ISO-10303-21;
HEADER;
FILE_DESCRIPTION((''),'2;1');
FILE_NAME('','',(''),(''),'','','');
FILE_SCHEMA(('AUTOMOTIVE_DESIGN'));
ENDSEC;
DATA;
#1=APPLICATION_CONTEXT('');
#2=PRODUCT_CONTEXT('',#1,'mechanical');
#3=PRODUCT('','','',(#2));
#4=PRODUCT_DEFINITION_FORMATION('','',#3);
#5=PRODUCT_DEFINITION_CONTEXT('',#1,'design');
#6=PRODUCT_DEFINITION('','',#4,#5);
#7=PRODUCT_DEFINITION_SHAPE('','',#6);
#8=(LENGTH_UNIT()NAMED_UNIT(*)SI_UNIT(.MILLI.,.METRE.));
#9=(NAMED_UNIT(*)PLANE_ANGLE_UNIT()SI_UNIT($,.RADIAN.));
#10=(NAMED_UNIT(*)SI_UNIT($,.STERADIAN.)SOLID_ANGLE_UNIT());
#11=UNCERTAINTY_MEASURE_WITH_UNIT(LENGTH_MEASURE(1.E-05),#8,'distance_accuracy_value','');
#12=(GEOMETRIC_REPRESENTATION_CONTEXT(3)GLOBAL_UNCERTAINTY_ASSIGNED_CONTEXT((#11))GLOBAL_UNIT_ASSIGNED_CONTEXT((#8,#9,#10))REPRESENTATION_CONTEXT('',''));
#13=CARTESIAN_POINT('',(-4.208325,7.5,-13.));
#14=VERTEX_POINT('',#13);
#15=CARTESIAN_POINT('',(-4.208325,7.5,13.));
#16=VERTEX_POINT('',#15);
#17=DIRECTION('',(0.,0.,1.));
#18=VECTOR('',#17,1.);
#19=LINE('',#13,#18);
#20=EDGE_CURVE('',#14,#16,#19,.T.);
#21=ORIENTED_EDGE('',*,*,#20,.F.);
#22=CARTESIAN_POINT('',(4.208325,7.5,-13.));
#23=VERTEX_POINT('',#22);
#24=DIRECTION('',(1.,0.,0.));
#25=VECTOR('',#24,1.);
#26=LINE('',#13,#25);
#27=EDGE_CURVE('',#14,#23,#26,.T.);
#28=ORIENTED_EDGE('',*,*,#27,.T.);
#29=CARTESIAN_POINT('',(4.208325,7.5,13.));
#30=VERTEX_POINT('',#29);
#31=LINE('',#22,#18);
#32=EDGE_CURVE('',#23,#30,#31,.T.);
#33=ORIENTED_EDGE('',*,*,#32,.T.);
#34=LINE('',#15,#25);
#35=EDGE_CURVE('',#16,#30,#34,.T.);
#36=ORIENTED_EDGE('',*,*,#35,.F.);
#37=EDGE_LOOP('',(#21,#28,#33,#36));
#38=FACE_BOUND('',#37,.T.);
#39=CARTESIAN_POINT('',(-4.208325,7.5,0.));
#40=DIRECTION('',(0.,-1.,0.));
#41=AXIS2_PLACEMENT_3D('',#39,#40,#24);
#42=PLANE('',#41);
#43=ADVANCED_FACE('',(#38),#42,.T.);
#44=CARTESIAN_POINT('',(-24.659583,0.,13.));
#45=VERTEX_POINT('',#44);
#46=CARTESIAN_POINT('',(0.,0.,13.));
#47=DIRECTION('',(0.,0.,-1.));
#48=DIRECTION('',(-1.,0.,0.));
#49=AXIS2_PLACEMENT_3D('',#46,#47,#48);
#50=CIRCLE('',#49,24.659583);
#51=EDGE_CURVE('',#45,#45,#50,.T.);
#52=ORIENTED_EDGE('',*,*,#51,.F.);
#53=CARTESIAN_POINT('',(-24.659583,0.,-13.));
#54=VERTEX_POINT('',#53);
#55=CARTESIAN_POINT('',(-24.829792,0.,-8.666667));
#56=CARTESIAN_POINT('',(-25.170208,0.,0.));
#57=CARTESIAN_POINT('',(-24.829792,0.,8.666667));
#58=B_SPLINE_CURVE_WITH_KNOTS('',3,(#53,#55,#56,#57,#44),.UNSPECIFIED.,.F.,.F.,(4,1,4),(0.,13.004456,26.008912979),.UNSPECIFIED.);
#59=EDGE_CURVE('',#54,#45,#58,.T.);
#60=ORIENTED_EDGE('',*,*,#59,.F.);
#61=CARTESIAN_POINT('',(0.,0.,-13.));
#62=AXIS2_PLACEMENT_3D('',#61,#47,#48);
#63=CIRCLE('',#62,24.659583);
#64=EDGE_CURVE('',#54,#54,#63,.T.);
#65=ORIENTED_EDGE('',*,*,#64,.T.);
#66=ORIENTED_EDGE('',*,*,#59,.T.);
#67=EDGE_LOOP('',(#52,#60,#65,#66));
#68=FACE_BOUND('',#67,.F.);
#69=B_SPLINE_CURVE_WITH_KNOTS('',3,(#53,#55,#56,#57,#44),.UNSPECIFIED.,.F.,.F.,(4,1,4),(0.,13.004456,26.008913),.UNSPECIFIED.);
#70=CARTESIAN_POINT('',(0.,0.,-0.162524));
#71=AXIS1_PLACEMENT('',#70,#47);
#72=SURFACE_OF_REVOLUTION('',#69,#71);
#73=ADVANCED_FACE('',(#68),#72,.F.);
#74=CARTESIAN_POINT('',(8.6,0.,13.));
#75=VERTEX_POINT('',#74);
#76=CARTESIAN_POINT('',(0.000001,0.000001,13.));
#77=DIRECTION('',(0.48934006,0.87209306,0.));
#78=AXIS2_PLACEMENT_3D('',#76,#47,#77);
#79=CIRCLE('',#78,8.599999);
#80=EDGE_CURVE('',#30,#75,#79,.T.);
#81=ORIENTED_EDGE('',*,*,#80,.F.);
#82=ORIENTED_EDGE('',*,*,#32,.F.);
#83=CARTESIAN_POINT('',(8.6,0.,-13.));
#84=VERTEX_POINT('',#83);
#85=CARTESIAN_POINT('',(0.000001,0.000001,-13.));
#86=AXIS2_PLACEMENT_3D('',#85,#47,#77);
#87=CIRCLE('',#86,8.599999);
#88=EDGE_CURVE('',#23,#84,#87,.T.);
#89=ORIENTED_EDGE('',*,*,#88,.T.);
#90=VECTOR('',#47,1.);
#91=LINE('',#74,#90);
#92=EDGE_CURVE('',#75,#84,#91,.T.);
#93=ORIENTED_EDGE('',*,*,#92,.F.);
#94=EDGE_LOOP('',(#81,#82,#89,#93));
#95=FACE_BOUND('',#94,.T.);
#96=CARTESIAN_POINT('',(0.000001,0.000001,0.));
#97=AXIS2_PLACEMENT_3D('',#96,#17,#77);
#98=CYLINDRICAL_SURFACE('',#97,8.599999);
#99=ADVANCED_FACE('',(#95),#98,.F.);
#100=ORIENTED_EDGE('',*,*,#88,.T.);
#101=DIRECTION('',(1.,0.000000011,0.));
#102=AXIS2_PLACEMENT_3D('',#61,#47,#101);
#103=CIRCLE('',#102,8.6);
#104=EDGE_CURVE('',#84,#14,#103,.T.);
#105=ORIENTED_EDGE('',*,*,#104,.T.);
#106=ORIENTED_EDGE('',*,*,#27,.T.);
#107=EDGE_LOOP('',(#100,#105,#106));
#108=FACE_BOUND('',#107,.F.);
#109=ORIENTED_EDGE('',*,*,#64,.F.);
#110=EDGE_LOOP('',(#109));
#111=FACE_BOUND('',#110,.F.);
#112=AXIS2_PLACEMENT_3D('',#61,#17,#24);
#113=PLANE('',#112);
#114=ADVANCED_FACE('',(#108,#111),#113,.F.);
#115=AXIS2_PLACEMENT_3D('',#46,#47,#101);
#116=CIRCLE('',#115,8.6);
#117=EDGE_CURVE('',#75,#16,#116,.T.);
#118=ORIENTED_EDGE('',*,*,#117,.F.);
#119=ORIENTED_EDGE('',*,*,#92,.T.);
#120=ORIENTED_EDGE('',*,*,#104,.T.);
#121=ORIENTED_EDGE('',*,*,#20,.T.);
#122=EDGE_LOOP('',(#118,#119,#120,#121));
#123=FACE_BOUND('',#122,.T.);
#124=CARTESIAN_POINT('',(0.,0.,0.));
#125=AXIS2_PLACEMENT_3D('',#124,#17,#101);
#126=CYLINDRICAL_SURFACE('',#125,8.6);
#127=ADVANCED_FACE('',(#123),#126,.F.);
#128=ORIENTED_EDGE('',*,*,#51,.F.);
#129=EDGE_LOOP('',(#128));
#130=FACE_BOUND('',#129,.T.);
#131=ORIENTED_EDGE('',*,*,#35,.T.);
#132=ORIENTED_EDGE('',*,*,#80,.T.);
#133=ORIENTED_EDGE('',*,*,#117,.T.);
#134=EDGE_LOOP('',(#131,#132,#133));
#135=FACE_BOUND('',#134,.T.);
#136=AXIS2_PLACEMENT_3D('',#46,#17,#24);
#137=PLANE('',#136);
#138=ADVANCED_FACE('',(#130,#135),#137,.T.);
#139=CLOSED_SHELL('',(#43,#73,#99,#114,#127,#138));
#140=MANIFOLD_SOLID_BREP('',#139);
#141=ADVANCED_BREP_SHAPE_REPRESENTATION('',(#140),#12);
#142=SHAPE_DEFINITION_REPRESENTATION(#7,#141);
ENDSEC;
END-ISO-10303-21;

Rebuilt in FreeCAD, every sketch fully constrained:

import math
import FreeCAD as App
import Part
import Sketcher

V = App.Vector
Q = App.Units.Quantity

doc = App.newDocument("Part")
body = doc.addObject("PartDesign::Body", "Body")

sketch1 = doc.addObject("Sketcher::SketchObject", "Sketch")
body.addObject(sketch1)
sketch1.AttachmentSupport = (doc.XY_Plane, [""])
sketch1.MapMode = "FlatFace"
sketch1.addGeometry([
    Part.Circle(V(0, 0, 0), V(0, 0, 1), 25),
    Part.ArcOfCircle(Part.Circle(V(0, 0, 0), V(0, 0, 1), 9), math.radians(119), math.radians(360)),
    Part.LineSegment(V(-4, 8, 0), V(4, 8, 0)),
    Part.ArcOfCircle(Part.Circle(V(0, 0, 0), V(0, 0, 1), 9), math.radians(0), math.radians(61)),
], False)
sketch1.addConstraint([
    Sketcher.Constraint("Coincident", 1, 1, 2, 1),
    Sketcher.Constraint("Coincident", 2, 2, 3, 2),
    Sketcher.Constraint("Tangent", 3, 1, 1, 2),
    Sketcher.Constraint("Horizontal", 2),
    Sketcher.Constraint("Coincident", 0, 3, -1, 1),
    Sketcher.Constraint("Coincident", 1, 3, -1, 1),
    Sketcher.Constraint("Equal", 1, 3),
    Sketcher.Constraint("PointOnObject", 3, 1, -1),
    Sketcher.Constraint("Diameter", 0, Q("50 mm")),
    Sketcher.Constraint("Radius", 1, Q("8.6 mm")),
    Sketcher.Constraint("DistanceY", -1, 1, 1, 1, Q("7.5 mm")),
])
pad1 = doc.addObject("PartDesign::Pad", "Pad")
body.addObject(pad1)
pad1.Profile = sketch1
pad1.Length = 26
pad1.Midplane = True

sketch2 = doc.addObject("Sketcher::SketchObject", "Sketch001")
body.addObject(sketch2)
sketch2.AttachmentSupport = (doc.XZ_Plane, [""])
sketch2.MapMode = "FlatFace"
sketch2.addGeometry([
    Part.BSplineCurve([V(-24.659583, -13, 0), V(-24.829792, -8.666667, 0), V(-25.170208, 0, 0), V(-24.829792, 8.666667, 0), V(-24.659583, 13, 0)], [4, 1, 4], [0, 13.004456, 26.008913], False, 3, [1, 1, 1, 1, 1], False),
    Part.LineSegment(V(-24.659583, 13, 0), V(-43.254843, 13, 0)),
    Part.LineSegment(V(-43.254843, 13, 0), V(-43.254843, -13, 0)),
    Part.LineSegment(V(-43.254843, -13, 0), V(-24.659583, -13, 0)),
], False)
sketch2.addConstraint([
    Sketcher.Constraint("Block", 0),
    Sketcher.Constraint("Coincident", 0, 2, 1, 1),
    Sketcher.Constraint("Coincident", 1, 2, 2, 1),
    Sketcher.Constraint("Coincident", 2, 2, 3, 1),
    Sketcher.Constraint("Coincident", 3, 2, 0, 1),
    Sketcher.Constraint("Horizontal", 1),
    Sketcher.Constraint("Vertical", 2),
    Sketcher.Constraint("Horizontal", 3),
    Sketcher.Constraint("DistanceX", 1, 2, 1, 1, Q("18.59526 mm")),
])
groove = doc.addObject("PartDesign::Groove", "Groove")
body.addObject(groove)
groove.Profile = sketch2
groove.ReferenceAxis = (sketch2, ["V_Axis"])
groove.Angle = 360

doc.recompute()
